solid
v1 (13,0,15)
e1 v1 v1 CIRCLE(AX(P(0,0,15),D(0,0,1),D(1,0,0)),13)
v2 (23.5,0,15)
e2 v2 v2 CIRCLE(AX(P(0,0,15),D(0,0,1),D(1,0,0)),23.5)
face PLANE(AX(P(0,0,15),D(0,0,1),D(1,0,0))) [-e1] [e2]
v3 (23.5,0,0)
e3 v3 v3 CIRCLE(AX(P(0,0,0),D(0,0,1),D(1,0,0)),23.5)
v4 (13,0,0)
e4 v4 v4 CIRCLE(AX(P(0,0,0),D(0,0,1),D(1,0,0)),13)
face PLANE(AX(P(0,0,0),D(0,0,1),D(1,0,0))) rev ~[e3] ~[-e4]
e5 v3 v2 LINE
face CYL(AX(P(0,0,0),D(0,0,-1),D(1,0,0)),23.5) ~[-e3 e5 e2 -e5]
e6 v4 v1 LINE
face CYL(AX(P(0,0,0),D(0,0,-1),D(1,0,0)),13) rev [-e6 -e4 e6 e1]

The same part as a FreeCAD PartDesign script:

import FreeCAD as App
import Part
import Sketcher
from FreeCAD import Vector
Q = App.Units.Quantity

doc = App.newDocument("Part")
params = doc.addObject("Spreadsheet::Sheet", "Params")
for row, (alias, value) in enumerate([
    ("sketch1_diameter", "47 mm"),
    ("sketch1_diameter2", "26 mm"),
    ("pad1_length", "15 mm"),
], start=1):
    params.set(f"A{row}", alias)
    params.set(f"B{row}", "=" + value)
    params.setAlias(f"B{row}", alias)

body = doc.addObject("PartDesign::Body", "Body")

sketch1 = body.newObject("Sketcher::SketchObject", "Sketch")
sketch1.AttachmentSupport = (doc.getObject("XY_Plane"), [""])
sketch1.MapMode = "FlatFace"
sketch1.addGeometry(Part.Circle(Vector(0, 0, 0), Vector(0, 0, 1), 23.5), False)
sketch1.addGeometry(Part.Circle(Vector(0, 0, 0), Vector(0, 0, 1), 13), False)
sketch1.addConstraint(Sketcher.Constraint("Coincident", 0, 3, -1, 1))
sketch1.addConstraint(Sketcher.Constraint("Coincident", 1, 3, -1, 1))
sketch1.addConstraint(Sketcher.Constraint("Diameter", 0, Q("47 mm")))
sketch1.addConstraint(Sketcher.Constraint("Diameter", 1, Q("26 mm")))
sketch1.setExpression("Constraints[2]", "Params.sketch1_diameter")
sketch1.setExpression("Constraints[3]", "Params.sketch1_diameter2")
pad1 = body.newObject("PartDesign::Pad", "Pad")
pad1.Profile = sketch1
pad1.setExpression("Length", "Params.pad1_length")

doc.recompute()
